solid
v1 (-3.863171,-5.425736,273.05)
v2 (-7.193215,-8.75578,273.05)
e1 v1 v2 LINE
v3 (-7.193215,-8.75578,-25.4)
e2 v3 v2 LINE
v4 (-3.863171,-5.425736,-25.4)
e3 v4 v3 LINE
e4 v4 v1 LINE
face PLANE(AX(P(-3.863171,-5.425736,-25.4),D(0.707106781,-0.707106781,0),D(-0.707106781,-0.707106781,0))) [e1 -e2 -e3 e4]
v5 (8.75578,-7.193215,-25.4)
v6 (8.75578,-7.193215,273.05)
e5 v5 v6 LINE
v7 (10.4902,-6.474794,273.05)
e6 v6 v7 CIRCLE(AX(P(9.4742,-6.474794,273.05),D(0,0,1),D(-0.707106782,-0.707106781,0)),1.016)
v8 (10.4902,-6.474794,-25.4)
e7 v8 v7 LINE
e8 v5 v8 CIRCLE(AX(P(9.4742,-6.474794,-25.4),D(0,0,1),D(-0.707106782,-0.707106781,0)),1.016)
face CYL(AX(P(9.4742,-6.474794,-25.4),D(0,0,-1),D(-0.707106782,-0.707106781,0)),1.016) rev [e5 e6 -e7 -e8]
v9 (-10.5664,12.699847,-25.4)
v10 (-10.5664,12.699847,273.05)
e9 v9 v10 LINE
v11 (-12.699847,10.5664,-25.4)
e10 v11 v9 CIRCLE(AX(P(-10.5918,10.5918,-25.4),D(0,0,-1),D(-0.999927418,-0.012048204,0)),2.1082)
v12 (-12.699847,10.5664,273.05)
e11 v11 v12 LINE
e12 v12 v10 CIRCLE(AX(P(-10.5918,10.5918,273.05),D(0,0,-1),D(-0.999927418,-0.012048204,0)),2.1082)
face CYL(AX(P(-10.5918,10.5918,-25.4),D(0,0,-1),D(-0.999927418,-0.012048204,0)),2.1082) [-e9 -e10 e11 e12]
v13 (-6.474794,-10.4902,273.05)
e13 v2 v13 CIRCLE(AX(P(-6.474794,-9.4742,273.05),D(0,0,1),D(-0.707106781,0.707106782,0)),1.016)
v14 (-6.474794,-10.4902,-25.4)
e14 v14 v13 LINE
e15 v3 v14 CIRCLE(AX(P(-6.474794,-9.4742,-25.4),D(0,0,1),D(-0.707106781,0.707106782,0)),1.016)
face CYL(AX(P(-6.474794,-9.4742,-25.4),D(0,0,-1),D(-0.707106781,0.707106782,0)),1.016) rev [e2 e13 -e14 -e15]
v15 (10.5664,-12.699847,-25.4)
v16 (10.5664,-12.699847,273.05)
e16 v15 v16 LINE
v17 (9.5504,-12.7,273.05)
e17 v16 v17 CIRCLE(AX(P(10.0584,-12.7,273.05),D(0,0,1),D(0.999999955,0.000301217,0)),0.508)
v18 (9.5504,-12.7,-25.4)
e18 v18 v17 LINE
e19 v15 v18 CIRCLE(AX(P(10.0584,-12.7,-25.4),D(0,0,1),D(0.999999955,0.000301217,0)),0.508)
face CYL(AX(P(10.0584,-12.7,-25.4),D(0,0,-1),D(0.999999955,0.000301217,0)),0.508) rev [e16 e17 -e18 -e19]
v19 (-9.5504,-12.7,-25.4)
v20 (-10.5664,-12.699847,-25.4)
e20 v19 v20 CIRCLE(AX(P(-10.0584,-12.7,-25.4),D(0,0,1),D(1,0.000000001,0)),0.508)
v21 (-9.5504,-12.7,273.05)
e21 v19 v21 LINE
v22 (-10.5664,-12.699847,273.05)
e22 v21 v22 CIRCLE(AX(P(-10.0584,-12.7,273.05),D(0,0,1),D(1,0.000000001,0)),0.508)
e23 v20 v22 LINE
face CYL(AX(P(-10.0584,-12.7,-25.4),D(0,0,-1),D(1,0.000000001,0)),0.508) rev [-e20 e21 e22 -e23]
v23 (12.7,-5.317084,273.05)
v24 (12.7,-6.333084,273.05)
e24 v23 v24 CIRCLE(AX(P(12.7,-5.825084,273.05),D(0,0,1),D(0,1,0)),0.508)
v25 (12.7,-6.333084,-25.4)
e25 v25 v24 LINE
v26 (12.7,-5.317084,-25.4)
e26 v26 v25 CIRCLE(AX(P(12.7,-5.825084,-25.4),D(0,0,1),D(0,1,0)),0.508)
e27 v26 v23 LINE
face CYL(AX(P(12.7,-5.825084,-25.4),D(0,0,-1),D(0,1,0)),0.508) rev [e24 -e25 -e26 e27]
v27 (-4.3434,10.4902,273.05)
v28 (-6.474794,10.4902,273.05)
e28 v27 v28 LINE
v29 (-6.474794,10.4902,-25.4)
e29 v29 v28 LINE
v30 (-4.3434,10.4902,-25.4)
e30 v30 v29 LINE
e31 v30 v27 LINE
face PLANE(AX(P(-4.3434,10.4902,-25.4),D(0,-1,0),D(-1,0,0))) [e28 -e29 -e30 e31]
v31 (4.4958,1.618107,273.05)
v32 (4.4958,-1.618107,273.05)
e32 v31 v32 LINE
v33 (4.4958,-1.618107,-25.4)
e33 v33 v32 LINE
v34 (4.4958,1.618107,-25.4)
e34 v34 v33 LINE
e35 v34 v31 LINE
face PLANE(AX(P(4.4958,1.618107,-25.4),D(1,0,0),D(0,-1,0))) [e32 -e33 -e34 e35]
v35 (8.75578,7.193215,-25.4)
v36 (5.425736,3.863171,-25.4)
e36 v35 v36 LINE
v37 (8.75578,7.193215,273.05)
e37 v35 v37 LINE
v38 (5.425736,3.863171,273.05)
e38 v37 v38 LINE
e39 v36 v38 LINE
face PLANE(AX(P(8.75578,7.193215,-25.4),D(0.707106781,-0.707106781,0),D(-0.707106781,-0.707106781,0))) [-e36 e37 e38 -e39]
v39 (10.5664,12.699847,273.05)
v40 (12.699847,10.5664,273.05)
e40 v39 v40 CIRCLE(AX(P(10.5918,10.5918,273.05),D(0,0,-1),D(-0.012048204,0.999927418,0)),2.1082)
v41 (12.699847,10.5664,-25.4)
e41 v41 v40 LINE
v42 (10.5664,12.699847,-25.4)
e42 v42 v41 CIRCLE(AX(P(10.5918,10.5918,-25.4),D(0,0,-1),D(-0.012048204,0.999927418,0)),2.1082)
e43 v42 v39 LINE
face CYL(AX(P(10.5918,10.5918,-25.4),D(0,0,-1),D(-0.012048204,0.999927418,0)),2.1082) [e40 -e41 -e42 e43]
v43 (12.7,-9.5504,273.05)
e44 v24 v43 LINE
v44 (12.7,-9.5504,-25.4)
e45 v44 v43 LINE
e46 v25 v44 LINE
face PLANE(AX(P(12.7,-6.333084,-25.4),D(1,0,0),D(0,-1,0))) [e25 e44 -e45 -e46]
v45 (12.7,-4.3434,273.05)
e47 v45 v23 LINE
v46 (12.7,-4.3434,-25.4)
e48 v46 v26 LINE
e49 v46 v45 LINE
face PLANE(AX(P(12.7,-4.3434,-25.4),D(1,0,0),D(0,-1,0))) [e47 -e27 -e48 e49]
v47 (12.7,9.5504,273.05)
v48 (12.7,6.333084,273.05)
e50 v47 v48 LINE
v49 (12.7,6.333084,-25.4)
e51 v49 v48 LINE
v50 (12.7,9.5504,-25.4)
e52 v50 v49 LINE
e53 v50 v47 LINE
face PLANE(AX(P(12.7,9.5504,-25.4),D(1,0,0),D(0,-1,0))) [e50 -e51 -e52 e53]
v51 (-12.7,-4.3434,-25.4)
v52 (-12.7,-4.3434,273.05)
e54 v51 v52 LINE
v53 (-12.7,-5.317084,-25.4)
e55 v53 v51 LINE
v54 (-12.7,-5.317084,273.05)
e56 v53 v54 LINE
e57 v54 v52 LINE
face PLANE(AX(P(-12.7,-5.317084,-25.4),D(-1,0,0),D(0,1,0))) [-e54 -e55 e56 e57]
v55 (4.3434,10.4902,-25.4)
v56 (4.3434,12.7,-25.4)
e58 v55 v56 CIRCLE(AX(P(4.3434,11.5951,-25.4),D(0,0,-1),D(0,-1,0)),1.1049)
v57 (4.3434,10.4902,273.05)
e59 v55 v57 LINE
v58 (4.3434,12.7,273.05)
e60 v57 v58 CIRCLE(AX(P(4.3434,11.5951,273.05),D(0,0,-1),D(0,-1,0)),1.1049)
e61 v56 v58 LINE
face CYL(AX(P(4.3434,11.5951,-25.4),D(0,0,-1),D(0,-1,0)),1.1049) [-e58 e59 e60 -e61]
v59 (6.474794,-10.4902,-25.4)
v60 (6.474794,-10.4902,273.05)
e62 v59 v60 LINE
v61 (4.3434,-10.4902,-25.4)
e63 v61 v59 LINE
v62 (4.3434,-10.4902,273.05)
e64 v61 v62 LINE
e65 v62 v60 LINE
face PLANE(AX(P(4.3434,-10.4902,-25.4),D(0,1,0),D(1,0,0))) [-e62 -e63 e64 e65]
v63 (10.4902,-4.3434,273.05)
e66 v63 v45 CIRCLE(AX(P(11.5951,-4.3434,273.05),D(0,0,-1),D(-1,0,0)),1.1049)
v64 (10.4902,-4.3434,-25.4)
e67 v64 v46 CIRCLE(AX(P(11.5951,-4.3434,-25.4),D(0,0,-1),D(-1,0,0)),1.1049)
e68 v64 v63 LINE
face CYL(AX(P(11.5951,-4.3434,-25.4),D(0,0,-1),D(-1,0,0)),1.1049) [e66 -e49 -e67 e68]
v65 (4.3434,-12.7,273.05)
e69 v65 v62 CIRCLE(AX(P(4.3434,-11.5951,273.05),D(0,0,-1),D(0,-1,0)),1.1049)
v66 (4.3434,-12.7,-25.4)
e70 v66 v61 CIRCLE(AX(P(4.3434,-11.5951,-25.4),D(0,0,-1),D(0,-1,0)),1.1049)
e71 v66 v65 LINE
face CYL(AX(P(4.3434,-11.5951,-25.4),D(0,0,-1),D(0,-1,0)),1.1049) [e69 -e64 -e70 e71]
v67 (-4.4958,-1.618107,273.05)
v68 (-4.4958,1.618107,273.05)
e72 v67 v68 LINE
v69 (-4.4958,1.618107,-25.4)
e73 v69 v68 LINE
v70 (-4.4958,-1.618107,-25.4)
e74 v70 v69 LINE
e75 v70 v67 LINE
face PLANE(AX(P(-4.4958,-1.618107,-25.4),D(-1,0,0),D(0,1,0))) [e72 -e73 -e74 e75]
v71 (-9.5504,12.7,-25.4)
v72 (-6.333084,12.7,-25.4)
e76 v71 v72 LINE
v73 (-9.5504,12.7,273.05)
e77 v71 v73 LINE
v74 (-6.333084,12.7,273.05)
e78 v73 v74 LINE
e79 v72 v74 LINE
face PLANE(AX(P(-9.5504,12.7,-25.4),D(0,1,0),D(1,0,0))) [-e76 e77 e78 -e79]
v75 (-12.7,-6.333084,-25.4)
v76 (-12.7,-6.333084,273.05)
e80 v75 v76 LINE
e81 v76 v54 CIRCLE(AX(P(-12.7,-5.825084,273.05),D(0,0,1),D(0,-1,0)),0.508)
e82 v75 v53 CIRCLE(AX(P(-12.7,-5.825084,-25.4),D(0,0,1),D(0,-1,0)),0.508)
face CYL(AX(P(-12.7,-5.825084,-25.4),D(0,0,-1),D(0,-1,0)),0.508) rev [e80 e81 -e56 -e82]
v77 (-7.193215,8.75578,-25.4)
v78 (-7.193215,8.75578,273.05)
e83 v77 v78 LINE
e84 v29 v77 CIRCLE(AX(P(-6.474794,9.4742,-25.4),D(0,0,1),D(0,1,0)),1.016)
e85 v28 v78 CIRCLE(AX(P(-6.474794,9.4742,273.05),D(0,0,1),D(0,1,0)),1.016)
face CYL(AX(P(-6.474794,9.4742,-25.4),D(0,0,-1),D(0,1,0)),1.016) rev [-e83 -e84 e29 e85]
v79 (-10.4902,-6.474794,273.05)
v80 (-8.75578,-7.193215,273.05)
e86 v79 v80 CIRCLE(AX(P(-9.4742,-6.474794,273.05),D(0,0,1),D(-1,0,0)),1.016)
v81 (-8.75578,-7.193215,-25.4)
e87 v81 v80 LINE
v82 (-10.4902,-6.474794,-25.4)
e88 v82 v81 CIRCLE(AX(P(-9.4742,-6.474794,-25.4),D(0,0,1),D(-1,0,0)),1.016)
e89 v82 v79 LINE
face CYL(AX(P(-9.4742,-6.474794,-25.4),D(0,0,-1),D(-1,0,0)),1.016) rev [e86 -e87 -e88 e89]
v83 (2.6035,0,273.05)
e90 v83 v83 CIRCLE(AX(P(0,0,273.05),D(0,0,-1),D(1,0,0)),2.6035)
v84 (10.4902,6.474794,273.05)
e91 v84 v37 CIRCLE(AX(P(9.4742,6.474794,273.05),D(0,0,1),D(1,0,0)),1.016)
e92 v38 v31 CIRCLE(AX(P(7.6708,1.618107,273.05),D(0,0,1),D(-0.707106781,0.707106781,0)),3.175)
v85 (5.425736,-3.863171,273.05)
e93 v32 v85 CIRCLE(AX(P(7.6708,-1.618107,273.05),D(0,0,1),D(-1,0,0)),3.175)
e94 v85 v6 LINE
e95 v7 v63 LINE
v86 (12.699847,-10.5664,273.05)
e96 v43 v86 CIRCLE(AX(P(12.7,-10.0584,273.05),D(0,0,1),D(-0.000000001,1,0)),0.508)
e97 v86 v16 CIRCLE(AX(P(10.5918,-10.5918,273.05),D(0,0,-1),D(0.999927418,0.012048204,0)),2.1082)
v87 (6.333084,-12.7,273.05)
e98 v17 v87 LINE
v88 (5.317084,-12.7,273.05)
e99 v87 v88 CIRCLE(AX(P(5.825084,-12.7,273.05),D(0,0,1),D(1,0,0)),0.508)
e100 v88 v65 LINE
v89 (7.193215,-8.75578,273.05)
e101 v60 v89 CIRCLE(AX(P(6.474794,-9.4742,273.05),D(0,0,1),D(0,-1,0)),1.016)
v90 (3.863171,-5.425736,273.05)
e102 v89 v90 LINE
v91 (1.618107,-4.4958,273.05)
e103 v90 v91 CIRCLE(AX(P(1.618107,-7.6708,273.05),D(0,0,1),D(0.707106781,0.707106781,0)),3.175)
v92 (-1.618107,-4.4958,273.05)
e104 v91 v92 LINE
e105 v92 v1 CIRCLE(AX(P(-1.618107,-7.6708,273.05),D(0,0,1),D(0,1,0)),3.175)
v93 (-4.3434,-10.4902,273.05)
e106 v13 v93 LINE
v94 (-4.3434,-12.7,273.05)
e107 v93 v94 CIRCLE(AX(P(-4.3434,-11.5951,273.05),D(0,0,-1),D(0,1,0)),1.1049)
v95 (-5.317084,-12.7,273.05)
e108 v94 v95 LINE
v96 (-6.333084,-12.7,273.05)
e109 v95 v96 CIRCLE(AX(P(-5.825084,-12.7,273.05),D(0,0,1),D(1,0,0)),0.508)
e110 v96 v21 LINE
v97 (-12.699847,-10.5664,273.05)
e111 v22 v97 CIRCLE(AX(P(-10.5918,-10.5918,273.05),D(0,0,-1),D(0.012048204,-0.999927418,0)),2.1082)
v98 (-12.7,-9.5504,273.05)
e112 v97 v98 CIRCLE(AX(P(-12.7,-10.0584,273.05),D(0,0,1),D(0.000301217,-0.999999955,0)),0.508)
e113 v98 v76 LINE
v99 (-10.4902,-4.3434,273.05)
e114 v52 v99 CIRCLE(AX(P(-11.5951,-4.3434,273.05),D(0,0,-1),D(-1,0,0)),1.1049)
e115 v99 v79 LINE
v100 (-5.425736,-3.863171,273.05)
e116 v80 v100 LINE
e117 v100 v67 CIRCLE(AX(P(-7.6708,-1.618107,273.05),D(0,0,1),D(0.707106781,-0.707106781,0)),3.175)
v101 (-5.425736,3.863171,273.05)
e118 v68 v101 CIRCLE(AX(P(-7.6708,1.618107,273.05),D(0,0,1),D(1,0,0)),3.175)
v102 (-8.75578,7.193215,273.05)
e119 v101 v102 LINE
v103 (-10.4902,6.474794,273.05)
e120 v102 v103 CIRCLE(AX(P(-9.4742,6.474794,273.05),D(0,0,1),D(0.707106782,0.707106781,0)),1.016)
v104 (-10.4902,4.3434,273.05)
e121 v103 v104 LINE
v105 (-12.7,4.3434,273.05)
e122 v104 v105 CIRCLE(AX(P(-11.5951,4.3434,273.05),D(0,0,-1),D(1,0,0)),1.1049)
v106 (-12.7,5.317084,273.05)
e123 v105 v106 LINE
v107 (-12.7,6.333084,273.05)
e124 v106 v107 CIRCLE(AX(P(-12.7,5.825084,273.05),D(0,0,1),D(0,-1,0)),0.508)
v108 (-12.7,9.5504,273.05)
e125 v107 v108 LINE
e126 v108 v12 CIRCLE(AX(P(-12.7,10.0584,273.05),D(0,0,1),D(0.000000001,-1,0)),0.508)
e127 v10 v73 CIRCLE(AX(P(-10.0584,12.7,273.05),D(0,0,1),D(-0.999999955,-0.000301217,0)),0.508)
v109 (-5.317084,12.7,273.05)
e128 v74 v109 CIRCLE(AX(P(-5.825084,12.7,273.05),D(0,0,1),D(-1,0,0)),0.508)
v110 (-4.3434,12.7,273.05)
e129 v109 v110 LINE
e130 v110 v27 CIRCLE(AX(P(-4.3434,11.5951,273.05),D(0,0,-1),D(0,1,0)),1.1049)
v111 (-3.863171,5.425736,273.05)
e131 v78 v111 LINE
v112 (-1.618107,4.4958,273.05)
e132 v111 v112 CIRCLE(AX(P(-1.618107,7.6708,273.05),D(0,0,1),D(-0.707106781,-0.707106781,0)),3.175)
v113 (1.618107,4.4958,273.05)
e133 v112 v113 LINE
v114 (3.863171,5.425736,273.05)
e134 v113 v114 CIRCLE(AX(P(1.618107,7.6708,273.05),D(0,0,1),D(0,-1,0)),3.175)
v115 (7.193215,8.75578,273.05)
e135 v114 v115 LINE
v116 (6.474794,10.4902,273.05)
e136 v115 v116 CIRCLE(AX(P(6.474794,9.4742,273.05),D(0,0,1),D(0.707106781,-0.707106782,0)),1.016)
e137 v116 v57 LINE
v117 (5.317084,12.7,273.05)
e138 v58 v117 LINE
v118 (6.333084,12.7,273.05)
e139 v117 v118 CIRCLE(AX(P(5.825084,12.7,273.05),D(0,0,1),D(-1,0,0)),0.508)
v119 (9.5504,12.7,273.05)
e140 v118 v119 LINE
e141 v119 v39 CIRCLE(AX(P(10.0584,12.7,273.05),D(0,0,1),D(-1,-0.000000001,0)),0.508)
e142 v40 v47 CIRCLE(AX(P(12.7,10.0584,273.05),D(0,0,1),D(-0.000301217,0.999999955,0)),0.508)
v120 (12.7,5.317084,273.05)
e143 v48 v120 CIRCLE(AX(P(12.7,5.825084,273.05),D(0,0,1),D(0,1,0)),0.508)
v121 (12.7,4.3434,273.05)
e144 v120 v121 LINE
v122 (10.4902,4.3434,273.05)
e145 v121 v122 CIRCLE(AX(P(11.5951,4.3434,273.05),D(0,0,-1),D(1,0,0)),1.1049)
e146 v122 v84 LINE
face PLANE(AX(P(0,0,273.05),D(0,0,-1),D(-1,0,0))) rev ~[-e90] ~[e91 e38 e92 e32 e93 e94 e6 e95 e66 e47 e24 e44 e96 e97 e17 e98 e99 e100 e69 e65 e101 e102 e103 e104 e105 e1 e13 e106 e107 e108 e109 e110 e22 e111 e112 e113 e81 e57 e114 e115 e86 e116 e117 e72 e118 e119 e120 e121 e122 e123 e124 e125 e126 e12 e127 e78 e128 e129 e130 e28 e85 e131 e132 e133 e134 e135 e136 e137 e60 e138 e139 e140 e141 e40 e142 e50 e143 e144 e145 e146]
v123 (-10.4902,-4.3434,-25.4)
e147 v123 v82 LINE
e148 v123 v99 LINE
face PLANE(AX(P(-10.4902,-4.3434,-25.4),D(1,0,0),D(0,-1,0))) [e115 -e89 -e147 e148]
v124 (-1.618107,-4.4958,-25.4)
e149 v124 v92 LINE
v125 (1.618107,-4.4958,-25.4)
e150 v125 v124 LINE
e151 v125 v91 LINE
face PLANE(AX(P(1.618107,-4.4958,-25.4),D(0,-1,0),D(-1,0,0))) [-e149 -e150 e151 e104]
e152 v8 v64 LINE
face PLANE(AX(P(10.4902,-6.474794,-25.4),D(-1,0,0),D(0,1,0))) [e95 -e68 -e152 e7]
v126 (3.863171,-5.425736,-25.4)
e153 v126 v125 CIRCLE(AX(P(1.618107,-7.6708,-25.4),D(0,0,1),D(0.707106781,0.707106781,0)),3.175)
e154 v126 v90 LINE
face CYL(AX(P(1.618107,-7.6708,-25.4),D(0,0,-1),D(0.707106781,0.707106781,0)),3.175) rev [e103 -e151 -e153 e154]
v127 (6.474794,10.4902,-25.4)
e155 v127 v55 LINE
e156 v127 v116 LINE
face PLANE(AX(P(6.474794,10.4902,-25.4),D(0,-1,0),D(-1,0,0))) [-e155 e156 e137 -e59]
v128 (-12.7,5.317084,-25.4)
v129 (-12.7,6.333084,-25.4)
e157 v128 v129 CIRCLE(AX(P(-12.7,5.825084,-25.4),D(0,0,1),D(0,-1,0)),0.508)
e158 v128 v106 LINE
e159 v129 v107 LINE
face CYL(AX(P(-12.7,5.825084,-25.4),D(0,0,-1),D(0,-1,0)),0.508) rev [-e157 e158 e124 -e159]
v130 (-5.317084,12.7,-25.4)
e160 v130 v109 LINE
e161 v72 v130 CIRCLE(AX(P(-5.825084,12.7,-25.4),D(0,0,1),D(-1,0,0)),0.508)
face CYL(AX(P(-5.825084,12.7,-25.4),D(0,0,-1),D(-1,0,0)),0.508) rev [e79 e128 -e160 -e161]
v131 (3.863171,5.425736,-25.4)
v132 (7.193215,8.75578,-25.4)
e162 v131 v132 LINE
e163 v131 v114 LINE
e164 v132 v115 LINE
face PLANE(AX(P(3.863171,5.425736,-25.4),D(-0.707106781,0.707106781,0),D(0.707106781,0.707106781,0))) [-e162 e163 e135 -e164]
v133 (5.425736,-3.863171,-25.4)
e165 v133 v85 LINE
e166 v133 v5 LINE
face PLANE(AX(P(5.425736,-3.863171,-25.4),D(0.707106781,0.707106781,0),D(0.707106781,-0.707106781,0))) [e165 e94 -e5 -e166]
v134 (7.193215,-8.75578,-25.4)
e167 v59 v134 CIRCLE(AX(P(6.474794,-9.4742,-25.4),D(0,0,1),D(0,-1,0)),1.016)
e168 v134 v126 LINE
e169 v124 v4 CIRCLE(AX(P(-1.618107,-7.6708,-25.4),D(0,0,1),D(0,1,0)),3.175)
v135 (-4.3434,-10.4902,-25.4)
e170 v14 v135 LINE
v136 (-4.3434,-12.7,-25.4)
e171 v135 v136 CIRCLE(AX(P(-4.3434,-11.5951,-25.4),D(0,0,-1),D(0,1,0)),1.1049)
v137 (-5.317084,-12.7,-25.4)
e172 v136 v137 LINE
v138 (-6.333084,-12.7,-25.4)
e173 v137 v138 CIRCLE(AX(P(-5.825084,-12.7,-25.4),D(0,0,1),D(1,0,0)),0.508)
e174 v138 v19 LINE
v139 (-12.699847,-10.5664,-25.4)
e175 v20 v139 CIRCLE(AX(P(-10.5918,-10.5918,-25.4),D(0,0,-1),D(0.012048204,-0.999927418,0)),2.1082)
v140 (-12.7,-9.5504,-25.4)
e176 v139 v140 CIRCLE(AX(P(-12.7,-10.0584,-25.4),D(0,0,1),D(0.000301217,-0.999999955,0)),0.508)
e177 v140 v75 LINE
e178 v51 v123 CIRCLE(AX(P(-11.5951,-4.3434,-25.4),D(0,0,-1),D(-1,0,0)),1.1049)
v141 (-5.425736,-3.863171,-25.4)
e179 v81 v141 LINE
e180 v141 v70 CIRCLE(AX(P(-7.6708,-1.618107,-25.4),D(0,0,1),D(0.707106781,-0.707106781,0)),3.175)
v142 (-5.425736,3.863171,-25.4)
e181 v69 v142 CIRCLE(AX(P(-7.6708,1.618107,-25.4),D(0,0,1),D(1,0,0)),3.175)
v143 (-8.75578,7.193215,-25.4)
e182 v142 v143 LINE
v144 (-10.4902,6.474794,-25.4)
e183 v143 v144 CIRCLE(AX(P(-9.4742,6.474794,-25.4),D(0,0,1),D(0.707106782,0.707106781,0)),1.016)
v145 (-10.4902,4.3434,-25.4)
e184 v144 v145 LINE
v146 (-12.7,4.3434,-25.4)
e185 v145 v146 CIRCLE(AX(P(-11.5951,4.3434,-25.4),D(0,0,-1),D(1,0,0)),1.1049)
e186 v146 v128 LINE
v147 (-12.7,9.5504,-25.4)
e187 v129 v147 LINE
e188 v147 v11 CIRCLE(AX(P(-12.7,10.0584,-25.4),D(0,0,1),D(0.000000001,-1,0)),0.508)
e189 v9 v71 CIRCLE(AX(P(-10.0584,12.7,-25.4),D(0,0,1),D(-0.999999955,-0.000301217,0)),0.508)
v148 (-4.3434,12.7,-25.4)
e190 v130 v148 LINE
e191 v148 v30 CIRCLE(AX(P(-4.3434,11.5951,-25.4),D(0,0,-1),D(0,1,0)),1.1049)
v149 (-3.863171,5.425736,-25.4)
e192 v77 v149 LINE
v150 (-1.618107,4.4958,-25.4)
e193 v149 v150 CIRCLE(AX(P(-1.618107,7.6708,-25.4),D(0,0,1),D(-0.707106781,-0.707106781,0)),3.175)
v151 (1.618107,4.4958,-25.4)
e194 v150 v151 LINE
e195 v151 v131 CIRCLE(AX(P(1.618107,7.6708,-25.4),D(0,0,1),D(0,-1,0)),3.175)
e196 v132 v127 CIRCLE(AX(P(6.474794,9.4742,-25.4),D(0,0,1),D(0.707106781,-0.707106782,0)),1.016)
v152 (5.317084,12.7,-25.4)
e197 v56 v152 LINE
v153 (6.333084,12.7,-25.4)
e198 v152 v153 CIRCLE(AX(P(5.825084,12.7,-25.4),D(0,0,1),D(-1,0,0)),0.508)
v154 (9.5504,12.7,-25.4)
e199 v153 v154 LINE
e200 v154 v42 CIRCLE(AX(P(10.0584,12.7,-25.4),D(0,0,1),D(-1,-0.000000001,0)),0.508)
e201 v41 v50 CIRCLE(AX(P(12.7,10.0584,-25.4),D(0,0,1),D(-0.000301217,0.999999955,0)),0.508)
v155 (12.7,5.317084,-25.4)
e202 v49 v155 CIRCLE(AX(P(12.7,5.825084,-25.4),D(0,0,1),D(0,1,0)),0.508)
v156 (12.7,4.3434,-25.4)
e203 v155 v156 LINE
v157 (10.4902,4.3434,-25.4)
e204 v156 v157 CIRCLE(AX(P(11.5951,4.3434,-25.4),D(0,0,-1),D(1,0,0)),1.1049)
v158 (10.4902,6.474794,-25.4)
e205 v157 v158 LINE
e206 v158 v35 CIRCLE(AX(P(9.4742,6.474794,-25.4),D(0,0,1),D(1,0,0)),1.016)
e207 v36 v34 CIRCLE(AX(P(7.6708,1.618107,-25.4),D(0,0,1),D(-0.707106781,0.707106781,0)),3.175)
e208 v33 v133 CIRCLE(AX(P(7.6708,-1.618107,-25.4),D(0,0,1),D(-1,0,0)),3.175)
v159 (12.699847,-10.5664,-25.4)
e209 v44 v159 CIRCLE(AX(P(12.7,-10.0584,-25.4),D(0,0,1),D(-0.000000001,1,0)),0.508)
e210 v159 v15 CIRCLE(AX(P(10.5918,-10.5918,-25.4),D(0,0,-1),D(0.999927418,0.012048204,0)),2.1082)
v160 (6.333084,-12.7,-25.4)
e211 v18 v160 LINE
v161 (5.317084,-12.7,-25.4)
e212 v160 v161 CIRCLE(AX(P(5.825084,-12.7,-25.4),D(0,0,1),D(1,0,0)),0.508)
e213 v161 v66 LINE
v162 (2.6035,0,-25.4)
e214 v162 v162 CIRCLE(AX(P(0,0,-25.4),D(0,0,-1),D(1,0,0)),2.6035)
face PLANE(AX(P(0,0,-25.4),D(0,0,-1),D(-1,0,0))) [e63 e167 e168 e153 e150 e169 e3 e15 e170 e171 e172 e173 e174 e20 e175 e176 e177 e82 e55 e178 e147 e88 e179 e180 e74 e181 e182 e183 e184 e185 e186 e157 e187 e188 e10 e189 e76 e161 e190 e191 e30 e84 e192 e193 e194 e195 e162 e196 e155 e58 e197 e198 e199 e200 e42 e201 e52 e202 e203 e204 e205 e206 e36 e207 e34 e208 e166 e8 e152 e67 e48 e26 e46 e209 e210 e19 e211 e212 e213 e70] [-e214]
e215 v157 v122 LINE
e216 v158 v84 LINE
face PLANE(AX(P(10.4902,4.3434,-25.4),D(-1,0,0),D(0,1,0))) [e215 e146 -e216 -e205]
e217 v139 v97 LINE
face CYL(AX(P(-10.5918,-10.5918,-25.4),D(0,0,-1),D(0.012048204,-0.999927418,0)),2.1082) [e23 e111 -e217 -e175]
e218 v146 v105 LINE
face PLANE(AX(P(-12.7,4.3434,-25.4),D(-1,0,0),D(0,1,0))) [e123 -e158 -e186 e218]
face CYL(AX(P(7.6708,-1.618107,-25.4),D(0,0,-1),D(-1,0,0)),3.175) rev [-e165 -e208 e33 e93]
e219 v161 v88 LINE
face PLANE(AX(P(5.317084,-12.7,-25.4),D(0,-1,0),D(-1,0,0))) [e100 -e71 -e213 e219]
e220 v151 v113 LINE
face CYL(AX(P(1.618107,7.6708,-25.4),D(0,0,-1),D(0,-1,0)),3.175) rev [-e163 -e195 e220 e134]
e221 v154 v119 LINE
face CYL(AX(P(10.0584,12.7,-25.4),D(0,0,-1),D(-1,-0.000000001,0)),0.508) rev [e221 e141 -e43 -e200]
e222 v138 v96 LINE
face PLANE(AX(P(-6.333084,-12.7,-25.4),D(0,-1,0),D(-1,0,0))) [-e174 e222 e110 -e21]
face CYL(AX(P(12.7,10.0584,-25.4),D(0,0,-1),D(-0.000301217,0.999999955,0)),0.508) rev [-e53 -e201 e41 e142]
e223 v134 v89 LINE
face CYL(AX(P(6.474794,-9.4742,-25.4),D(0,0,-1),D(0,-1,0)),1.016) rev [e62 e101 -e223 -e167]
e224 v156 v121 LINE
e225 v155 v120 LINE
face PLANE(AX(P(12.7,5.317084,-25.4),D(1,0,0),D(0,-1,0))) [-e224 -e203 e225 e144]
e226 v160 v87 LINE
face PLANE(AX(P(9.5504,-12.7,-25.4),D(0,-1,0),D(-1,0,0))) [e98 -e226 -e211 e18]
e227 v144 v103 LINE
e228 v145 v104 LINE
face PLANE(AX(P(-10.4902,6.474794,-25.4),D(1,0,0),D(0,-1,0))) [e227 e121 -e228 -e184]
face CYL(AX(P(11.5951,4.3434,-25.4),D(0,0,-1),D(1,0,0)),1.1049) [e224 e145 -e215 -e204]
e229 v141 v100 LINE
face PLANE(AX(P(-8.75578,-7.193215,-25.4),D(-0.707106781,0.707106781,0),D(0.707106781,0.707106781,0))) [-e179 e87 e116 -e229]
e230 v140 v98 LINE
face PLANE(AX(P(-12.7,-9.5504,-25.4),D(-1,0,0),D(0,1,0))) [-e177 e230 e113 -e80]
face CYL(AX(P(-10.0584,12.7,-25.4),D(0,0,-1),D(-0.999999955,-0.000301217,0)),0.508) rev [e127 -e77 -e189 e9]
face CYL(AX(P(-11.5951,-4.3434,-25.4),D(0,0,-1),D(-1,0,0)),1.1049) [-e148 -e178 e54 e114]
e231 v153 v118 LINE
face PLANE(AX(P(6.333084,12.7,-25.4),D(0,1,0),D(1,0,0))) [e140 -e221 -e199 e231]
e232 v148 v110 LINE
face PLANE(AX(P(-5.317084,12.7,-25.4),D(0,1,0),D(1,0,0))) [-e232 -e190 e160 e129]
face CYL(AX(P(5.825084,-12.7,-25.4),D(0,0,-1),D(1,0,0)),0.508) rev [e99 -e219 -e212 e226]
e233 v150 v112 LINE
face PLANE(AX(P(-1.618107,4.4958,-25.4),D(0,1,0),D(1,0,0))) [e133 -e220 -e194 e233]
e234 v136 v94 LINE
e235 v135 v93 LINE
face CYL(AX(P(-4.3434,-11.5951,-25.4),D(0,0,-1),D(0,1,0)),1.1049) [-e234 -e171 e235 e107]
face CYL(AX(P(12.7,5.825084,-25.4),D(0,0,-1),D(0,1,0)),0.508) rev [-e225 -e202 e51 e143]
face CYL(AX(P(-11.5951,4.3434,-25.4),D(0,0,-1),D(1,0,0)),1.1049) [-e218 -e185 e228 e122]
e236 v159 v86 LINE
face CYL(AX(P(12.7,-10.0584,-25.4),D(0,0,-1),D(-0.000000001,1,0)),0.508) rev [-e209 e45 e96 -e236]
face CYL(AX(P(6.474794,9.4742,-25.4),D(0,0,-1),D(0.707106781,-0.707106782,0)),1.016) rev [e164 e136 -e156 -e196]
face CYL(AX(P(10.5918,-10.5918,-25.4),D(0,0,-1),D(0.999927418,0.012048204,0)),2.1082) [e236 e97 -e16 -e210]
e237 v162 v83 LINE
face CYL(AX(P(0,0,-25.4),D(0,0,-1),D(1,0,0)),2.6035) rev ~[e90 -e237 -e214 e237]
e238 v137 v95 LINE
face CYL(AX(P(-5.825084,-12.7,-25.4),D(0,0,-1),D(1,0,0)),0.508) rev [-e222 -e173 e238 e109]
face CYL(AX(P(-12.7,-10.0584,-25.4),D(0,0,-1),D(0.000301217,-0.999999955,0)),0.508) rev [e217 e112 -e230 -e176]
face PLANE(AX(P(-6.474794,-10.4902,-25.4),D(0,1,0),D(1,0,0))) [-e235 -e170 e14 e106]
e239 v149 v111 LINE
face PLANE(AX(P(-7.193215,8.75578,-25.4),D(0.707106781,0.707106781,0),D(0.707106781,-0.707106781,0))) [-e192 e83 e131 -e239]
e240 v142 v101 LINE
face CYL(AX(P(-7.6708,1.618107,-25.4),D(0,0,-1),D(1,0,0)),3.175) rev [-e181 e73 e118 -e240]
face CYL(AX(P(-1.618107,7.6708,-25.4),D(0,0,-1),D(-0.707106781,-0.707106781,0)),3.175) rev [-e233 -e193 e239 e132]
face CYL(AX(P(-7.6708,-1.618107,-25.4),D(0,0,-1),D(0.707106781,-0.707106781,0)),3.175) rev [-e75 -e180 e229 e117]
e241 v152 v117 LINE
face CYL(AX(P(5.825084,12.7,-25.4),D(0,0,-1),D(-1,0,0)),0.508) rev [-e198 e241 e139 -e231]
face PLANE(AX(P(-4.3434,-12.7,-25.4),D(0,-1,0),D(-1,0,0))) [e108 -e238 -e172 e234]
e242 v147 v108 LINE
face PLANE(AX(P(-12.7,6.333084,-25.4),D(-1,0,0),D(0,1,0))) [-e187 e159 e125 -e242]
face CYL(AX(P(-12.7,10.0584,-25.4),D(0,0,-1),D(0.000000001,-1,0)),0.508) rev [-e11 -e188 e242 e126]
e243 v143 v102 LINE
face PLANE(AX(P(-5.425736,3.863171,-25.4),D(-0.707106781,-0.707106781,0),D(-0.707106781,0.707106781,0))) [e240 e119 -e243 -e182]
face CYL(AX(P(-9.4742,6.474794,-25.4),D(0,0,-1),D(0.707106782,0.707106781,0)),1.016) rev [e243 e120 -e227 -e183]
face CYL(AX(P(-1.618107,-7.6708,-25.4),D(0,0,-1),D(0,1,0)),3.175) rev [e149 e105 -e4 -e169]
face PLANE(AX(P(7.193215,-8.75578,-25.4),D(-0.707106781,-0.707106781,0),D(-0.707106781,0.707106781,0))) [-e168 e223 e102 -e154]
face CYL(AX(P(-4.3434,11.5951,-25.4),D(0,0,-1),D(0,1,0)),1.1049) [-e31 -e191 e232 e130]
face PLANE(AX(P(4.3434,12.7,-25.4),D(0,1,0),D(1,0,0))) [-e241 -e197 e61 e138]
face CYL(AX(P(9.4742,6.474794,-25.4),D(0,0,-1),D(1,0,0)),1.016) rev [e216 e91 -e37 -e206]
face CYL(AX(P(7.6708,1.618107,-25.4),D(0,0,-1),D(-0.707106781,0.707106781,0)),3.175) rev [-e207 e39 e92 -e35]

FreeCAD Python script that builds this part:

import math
import FreeCAD as App
import Part
import Sketcher
Q = App.Units.Quantity

doc = App.newDocument("Part")
body = doc.addObject("PartDesign::Body", "Body")

# Sketch on XY plane
sketch1 = body.newObject("Sketcher::SketchObject", "Sketch")
sketch1.AttachmentSupport = (doc.getObject("XY_Plane"), [""])
sketch1.MapMode = "FlatFace"
sketch1.AttachmentOffset = App.Placement(App.Vector(0, 0, -1 * 25.4), App.Rotation())
sketch1.addGeometry(Part.LineSegment(App.Vector(-12.7, -9.6, 0), App.Vector(-12.7, -6.3, 0)), False)
sketch1.addGeometry(Part.ArcOfCircle(Part.Circle(App.Vector(-12.7, -5.8, 0), App.Vector(0, 0, 1), 0.5), math.radians(-90), math.radians(90)), False)
sketch1.addGeometry(Part.LineSegment(App.Vector(-12.7, -5.3, 0), App.Vector(-12.7, -4.3, 0)), False)
sketch1.addGeometry(Part.ArcOfCircle(Part.Circle(App.Vector(-11.6, -4.3, 0), App.Vector(0, 0, 1), 1.1), math.radians(0), math.radians(180)), False)
sketch1.addGeometry(Part.LineSegment(App.Vector(-10.5, -4.3, 0), App.Vector(-10.5, -6.5, 0)), False)
sketch1.addGeometry(Part.ArcOfCircle(Part.Circle(App.Vector(-9.5, -6.5, 0), App.Vector(0, 0, 1), 1), math.radians(180), math.radians(315)), False)
sketch1.addGeometry(Part.LineSegment(App.Vector(-8.8, -7.2, 0), App.Vector(-5.4, -3.9, 0)), False)
sketch1.addGeometry(Part.ArcOfCircle(Part.Circle(App.Vector(-7.7, -1.6, 0), App.Vector(0, 0, 1), 3.2), math.radians(-45), math.radians(0)), False)
sketch1.addGeometry(Part.LineSegment(App.Vector(-4.5, -1.6, 0), App.Vector(-4.5, 1.6, 0)), False)
sketch1.addGeometry(Part.ArcOfCircle(Part.Circle(App.Vector(-7.7, 1.6, 0), App.Vector(0, 0, 1), 3.2), math.radians(0), math.radians(45)), False)
sketch1.addGeometry(Part.LineSegment(App.Vector(-5.4, 3.9, 0), App.Vector(-8.8, 7.2, 0)), False)
sketch1.addGeometry(Part.ArcOfCircle(Part.Circle(App.Vector(-9.5, 6.5, 0), App.Vector(0, 0, 1), 1), math.radians(45), math.radians(180)), False)
sketch1.addGeometry(Part.LineSegment(App.Vector(-10.5, 6.5, 0), App.Vector(-10.5, 4.3, 0)), False)
sketch1.addGeometry(Part.ArcOfCircle(Part.Circle(App.Vector(-11.6, 4.3, 0), App.Vector(0, 0, 1), 1.1), math.radians(180), math.radians(360)), False)
sketch1.addGeometry(Part.LineSegment(App.Vector(-12.7, 4.3, 0), App.Vector(-12.7, 5.3, 0)), False)
sketch1.addGeometry(Part.ArcOfCircle(Part.Circle(App.Vector(-12.7, 5.8, 0), App.Vector(0, 0, 1), 0.5), math.radians(-90), math.radians(90)), False)
sketch1.addGeometry(Part.LineSegment(App.Vector(-12.7, 6.3, 0), App.Vector(-12.7, 9.6, 0)), False)
sketch1.addGeometry(Part.ArcOfCircle(Part.Circle(App.Vector(-12.7, 10.1, 0), App.Vector(0, 0, 1), 0.5), math.radians(-90), math.radians(90)), False)
sketch1.addGeometry(Part.ArcOfCircle(Part.Circle(App.Vector(-10.6, 10.6, 0), App.Vector(0, 0, 1), 2.1), math.radians(89), math.radians(181)), False)
sketch1.addGeometry(Part.ArcOfCircle(Part.Circle(App.Vector(-10.1, 12.7, 0), App.Vector(0, 0, 1), 0.5), math.radians(-180), math.radians(0)), False)
sketch1.addGeometry(Part.LineSegment(App.Vector(-9.6, 12.7, 0), App.Vector(-6.3, 12.7, 0)), False)
sketch1.addGeometry(Part.ArcOfCircle(Part.Circle(App.Vector(-5.8, 12.7, 0), App.Vector(0, 0, 1), 0.5), math.radians(180), math.radians(360)), False)
sketch1.addGeometry(Part.LineSegment(App.Vector(-5.3, 12.7, 0), App.Vector(-4.3, 12.7, 0)), False)
sketch1.addGeometry(Part.ArcOfCircle(Part.Circle(App.Vector(-4.3, 11.6, 0), App.Vector(0, 0, 1), 1.1), math.radians(-90), math.radians(90)), False)
sketch1.addGeometry(Part.LineSegment(App.Vector(-4.3, 10.5, 0), App.Vector(-6.5, 10.5, 0)), False)
sketch1.addGeometry(Part.ArcOfCircle(Part.Circle(App.Vector(-6.5, 9.5, 0), App.Vector(0, 0, 1), 1), math.radians(90), math.radians(225)), False)
sketch1.addGeometry(Part.LineSegment(App.Vector(-7.2, 8.8, 0), App.Vector(-3.9, 5.4, 0)), False)
sketch1.addGeometry(Part.ArcOfCircle(Part.Circle(App.Vector(-1.6, 7.7, 0), App.Vector(0, 0, 1), 3.2), math.radians(-135), math.radians(-90)), False)
sketch1.addGeometry(Part.LineSegment(App.Vector(-1.6, 4.5, 0), App.Vector(1.6, 4.5, 0)), False)
sketch1.addGeometry(Part.ArcOfCircle(Part.Circle(App.Vector(1.6, 7.7, 0), App.Vector(0, 0, 1), 3.2), math.radians(-90), math.radians(-45)), False)
sketch1.addGeometry(Part.LineSegment(App.Vector(3.9, 5.4, 0), App.Vector(7.2, 8.8, 0)), False)
sketch1.addGeometry(Part.ArcOfCircle(Part.Circle(App.Vector(6.5, 9.5, 0), App.Vector(0, 0, 1), 1), math.radians(-45), math.radians(90)), False)
sketch1.addGeometry(Part.LineSegment(App.Vector(6.5, 10.5, 0), App.Vector(4.3, 10.5, 0)), False)
sketch1.addGeometry(Part.ArcOfCircle(Part.Circle(App.Vector(4.3, 11.6, 0), App.Vector(0, 0, 1), 1.1), math.radians(90), math.radians(270)), False)
sketch1.addGeometry(Part.LineSegment(App.Vector(4.3, 12.7, 0), App.Vector(5.3, 12.7, 0)), False)
sketch1.addGeometry(Part.ArcOfCircle(Part.Circle(App.Vector(5.8, 12.7, 0), App.Vector(0, 0, 1), 0.5), math.radians(180), math.radians(360)), False)
sketch1.addGeometry(Part.LineSegment(App.Vector(6.3, 12.7, 0), App.Vector(9.6, 12.7, 0)), False)
sketch1.addGeometry(Part.ArcOfCircle(Part.Circle(App.Vector(10.1, 12.7, 0), App.Vector(0, 0, 1), 0.5), math.radians(180), math.radians(360)), False)
sketch1.addGeometry(Part.ArcOfCircle(Part.Circle(App.Vector(10.6, 10.6, 0), App.Vector(0, 0, 1), 2.1), math.radians(-1), math.radians(91)), False)
sketch1.addGeometry(Part.ArcOfCircle(Part.Circle(App.Vector(12.7, 10.1, 0), App.Vector(0, 0, 1), 0.5), math.radians(90), math.radians(270)), False)
sketch1.addGeometry(Part.LineSegment(App.Vector(12.7, 9.6, 0), App.Vector(12.7, 6.3, 0)), False)
sketch1.addGeometry(Part.ArcOfCircle(Part.Circle(App.Vector(12.7, 5.8, 0), App.Vector(0, 0, 1), 0.5), math.radians(90), math.radians(270)), False)
sketch1.addGeometry(Part.LineSegment(App.Vector(12.7, 5.3, 0), App.Vector(12.7, 4.3, 0)), False)
sketch1.addGeometry(Part.ArcOfCircle(Part.Circle(App.Vector(11.6, 4.3, 0), App.Vector(0, 0, 1), 1.1), math.radians(180), math.radians(360)), False)
sketch1.addGeometry(Part.LineSegment(App.Vector(10.5, 4.3, 0), App.Vector(10.5, 6.5, 0)), False)
sketch1.addGeometry(Part.ArcOfCircle(Part.Circle(App.Vector(9.5, 6.5, 0), App.Vector(0, 0, 1), 1), math.radians(0), math.radians(135)), False)
sketch1.addGeometry(Part.LineSegment(App.Vector(8.8, 7.2, 0), App.Vector(5.4, 3.9, 0)), False)
sketch1.addGeometry(Part.ArcOfCircle(Part.Circle(App.Vector(7.7, 1.6, 0), App.Vector(0, 0, 1), 3.2), math.radians(135), math.radians(180)), False)
sketch1.addGeometry(Part.LineSegment(App.Vector(4.5, 1.6, 0), App.Vector(4.5, -1.6, 0)), False)
sketch1.addGeometry(Part.ArcOfCircle(Part.Circle(App.Vector(7.7, -1.6, 0), App.Vector(0, 0, 1), 3.2), math.radians(180), math.radians(225)), False)
sketch1.addGeometry(Part.LineSegment(App.Vector(5.4, -3.9, 0), App.Vector(8.8, -7.2, 0)), False)
sketch1.addGeometry(Part.ArcOfCircle(Part.Circle(App.Vector(9.5, -6.5, 0), App.Vector(0, 0, 1), 1), math.radians(-135), math.radians(0)), False)
sketch1.addGeometry(Part.LineSegment(App.Vector(10.5, -6.5, 0), App.Vector(10.5, -4.3, 0)), False)
sketch1.addGeometry(Part.ArcOfCircle(Part.Circle(App.Vector(11.6, -4.3, 0), App.Vector(0, 0, 1), 1.1), math.radians(0), math.radians(180)), False)
sketch1.addGeometry(Part.LineSegment(App.Vector(12.7, -4.3, 0), App.Vector(12.7, -5.3, 0)), False)
sketch1.addGeometry(Part.ArcOfCircle(Part.Circle(App.Vector(12.7, -5.8, 0), App.Vector(0, 0, 1), 0.5), math.radians(90), math.radians(270)), False)
sketch1.addGeometry(Part.LineSegment(App.Vector(12.7, -6.3, 0), App.Vector(12.7, -9.6, 0)), False)
sketch1.addGeometry(Part.ArcOfCircle(Part.Circle(App.Vector(12.7, -10.1, 0), App.Vector(0, 0, 1), 0.5), math.radians(90), math.radians(270)), False)
sketch1.addGeometry(Part.ArcOfCircle(Part.Circle(App.Vector(10.6, -10.6, 0), App.Vector(0, 0, 1), 2.1), math.radians(-91), math.radians(1)), False)
sketch1.addGeometry(Part.ArcOfCircle(Part.Circle(App.Vector(10.1, -12.7, 0), App.Vector(0, 0, 1), 0.5), math.radians(0), math.radians(180)), False)
sketch1.addGeometry(Part.LineSegment(App.Vector(9.6, -12.7, 0), App.Vector(6.3, -12.7, 0)), False)
sketch1.addGeometry(Part.ArcOfCircle(Part.Circle(App.Vector(5.8, -12.7, 0), App.Vector(0, 0, 1), 0.5), math.radians(0), math.radians(180)), False)
sketch1.addGeometry(Part.LineSegment(App.Vector(5.3, -12.7, 0), App.Vector(4.3, -12.7, 0)), False)
sketch1.addGeometry(Part.ArcOfCircle(Part.Circle(App.Vector(4.3, -11.6, 0), App.Vector(0, 0, 1), 1.1), math.radians(90), math.radians(270)), False)
sketch1.addGeometry(Part.LineSegment(App.Vector(4.3, -10.5, 0), App.Vector(6.5, -10.5, 0)), False)
sketch1.addGeometry(Part.ArcOfCircle(Part.Circle(App.Vector(6.5, -9.5, 0), App.Vector(0, 0, 1), 1), math.radians(-90), math.radians(45)), False)
sketch1.addGeometry(Part.LineSegment(App.Vector(7.2, -8.8, 0), App.Vector(3.9, -5.4, 0)), False)
sketch1.addGeometry(Part.ArcOfCircle(Part.Circle(App.Vector(1.6, -7.7, 0), App.Vector(0, 0, 1), 3.2), math.radians(45), math.radians(90)), False)
sketch1.addGeometry(Part.LineSegment(App.Vector(1.6, -4.5, 0), App.Vector(-1.6, -4.5, 0)), False)
sketch1.addGeometry(Part.ArcOfCircle(Part.Circle(App.Vector(-1.6, -7.7, 0), App.Vector(0, 0, 1), 3.2), math.radians(90), math.radians(135)), False)
sketch1.addGeometry(Part.LineSegment(App.Vector(-3.9, -5.4, 0), App.Vector(-7.2, -8.8, 0)), False)
sketch1.addGeometry(Part.ArcOfCircle(Part.Circle(App.Vector(-6.5, -9.5, 0), App.Vector(0, 0, 1), 1), math.radians(135), math.radians(270)), False)
sketch1.addGeometry(Part.LineSegment(App.Vector(-6.5, -10.5, 0), App.Vector(-4.3, -10.5, 0)), False)
sketch1.addGeometry(Part.ArcOfCircle(Part.Circle(App.Vector(-4.3, -11.6, 0), App.Vector(0, 0, 1), 1.1), math.radians(-90), math.radians(90)), False)
sketch1.addGeometry(Part.LineSegment(App.Vector(-4.3, -12.7, 0), App.Vector(-5.3, -12.7, 0)), False)
sketch1.addGeometry(Part.ArcOfCircle(Part.Circle(App.Vector(-5.8, -12.7, 0), App.Vector(0, 0, 1), 0.5), math.radians(0), math.radians(180)), False)
sketch1.addGeometry(Part.LineSegment(App.Vector(-6.3, -12.7, 0), App.Vector(-9.6, -12.7, 0)), False)
sketch1.addGeometry(Part.ArcOfCircle(Part.Circle(App.Vector(-10.1, -12.7, 0), App.Vector(0, 0, 1), 0.5), math.radians(0), math.radians(180)), False)
sketch1.addGeometry(Part.ArcOfCircle(Part.Circle(App.Vector(-10.6, -10.6, 0), App.Vector(0, 0, 1), 2.1), math.radians(179), math.radians(271)), False)
sketch1.addGeometry(Part.ArcOfCircle(Part.Circle(App.Vector(-12.7, -10.1, 0), App.Vector(0, 0, 1), 0.5), math.radians(-90), math.radians(90)), False)
sketch1.addGeometry(Part.Circle(App.Vector(0, 0, 0), App.Vector(0, 0, 1), 2.6), False)
sketch1.addConstraint(Sketcher.Constraint("Coincident", 0, 2, 1, 1))
sketch1.addConstraint(Sketcher.Constraint("Coincident", 1, 2, 2, 1))
sketch1.addConstraint(Sketcher.Constraint("Tangent", 2, 2, 3, 2))
sketch1.addConstraint(Sketcher.Constraint("Tangent", 3, 1, 4, 1))
sketch1.addConstraint(Sketcher.Constraint("Tangent", 4, 2, 5, 1))
sketch1.addConstraint(Sketcher.Constraint("Tangent", 5, 2, 6, 1))
sketch1.addConstraint(Sketcher.Constraint("Tangent", 6, 2, 7, 1))
sketch1.addConstraint(Sketcher.Constraint("Tangent", 7, 2, 8, 1))
sketch1.addConstraint(Sketcher.Constraint("Tangent", 8, 2, 9, 1))
sketch1.addConstraint(Sketcher.Constraint("Tangent", 9, 2, 10, 1))
sketch1.addConstraint(Sketcher.Constraint("Tangent", 10, 2, 11, 1))
sketch1.addConstraint(Sketcher.Constraint("Tangent", 11, 2, 12, 1))
sketch1.addConstraint(Sketcher.Constraint("Tangent", 12, 2, 13, 2))
sketch1.addConstraint(Sketcher.Constraint("Tangent", 13, 1, 14, 1))
sketch1.addConstraint(Sketcher.Constraint("Coincident", 14, 2, 15, 1))
sketch1.addConstraint(Sketcher.Constraint("Coincident", 15, 2, 16, 1))
sketch1.addConstraint(Sketcher.Constraint("Coincident", 16, 2, 17, 1))
sketch1.addConstraint(Sketcher.Constraint("Coincident", 17, 2, 18, 2))
sketch1.addConstraint(Sketcher.Constraint("Coincident", 18, 1, 19, 1))
sketch1.addConstraint(Sketcher.Constraint("Coincident", 19, 2, 20, 1))
sketch1.addConstraint(Sketcher.Constraint("Coincident", 20, 2, 21, 1))
sketch1.addConstraint(Sketcher.Constraint("Coincident", 21, 2, 22, 1))
sketch1.addConstraint(Sketcher.Constraint("Tangent", 22, 2, 23, 2))
sketch1.addConstraint(Sketcher.Constraint("Tangent", 23, 1, 24, 1))
sketch1.addConstraint(Sketcher.Constraint("Tangent", 24, 2, 25, 1))
sketch1.addConstraint(Sketcher.Constraint("Tangent", 25, 2, 26, 1))
sketch1.addConstraint(Sketcher.Constraint("Tangent", 26, 2, 27, 1))
sketch1.addConstraint(Sketcher.Constraint("Tangent", 27, 2, 28, 1))
sketch1.addConstraint(Sketcher.Constraint("Tangent", 28, 2, 29, 1))
sketch1.addConstraint(Sketcher.Constraint("Tangent", 29, 2, 30, 1))
sketch1.addConstraint(Sketcher.Constraint("Tangent", 30, 2, 31, 1))
sketch1.addConstraint(Sketcher.Constraint("Tangent", 31, 2, 32, 1))
sketch1.addConstraint(Sketcher.Constraint("Tangent", 32, 2, 33, 2))
sketch1.addConstraint(Sketcher.Constraint("Tangent", 33, 1, 34, 1))
sketch1.addConstraint(Sketcher.Constraint("Coincident", 34, 2, 35, 1))
sketch1.addConstraint(Sketcher.Constraint("Coincident", 35, 2, 36, 1))
sketch1.addConstraint(Sketcher.Constraint("Coincident", 36, 2, 37, 1))
sketch1.addConstraint(Sketcher.Constraint("Coincident", 37, 2, 38, 2))
sketch1.addConstraint(Sketcher.Constraint("Coincident", 38, 1, 39, 1))
sketch1.addConstraint(Sketcher.Constraint("Coincident", 39, 2, 40, 1))
sketch1.addConstraint(Sketcher.Constraint("Coincident", 40, 2, 41, 1))
sketch1.addConstraint(Sketcher.Constraint("Coincident", 41, 2, 42, 1))
sketch1.addConstraint(Sketcher.Constraint("Tangent", 42, 2, 43, 2))
sketch1.addConstraint(Sketcher.Constraint("Tangent", 43, 1, 44, 1))
sketch1.addConstraint(Sketcher.Constraint("Tangent", 44, 2, 45, 1))
sketch1.addConstraint(Sketcher.Constraint("Tangent", 45, 2, 46, 1))
sketch1.addConstraint(Sketcher.Constraint("Tangent", 46, 2, 47, 1))
sketch1.addConstraint(Sketcher.Constraint("Tangent", 47, 2, 48, 1))
sketch1.addConstraint(Sketcher.Constraint("Tangent", 48, 2, 49, 1))
sketch1.addConstraint(Sketcher.Constraint("Tangent", 49, 2, 50, 1))
sketch1.addConstraint(Sketcher.Constraint("Tangent", 50, 2, 51, 1))
sketch1.addConstraint(Sketcher.Constraint("Tangent", 51, 2, 52, 1))
sketch1.addConstraint(Sketcher.Constraint("Tangent", 52, 2, 53, 2))
sketch1.addConstraint(Sketcher.Constraint("Tangent", 53, 1, 54, 1))
sketch1.addConstraint(Sketcher.Constraint("Coincident", 54, 2, 55, 1))
sketch1.addConstraint(Sketcher.Constraint("Coincident", 55, 2, 56, 1))
sketch1.addConstraint(Sketcher.Constraint("Coincident", 56, 2, 57, 1))
sketch1.addConstraint(Sketcher.Constraint("Coincident", 57, 2, 58, 2))
sketch1.addConstraint(Sketcher.Constraint("Coincident", 58, 1, 59, 1))
sketch1.addConstraint(Sketcher.Constraint("Coincident", 59, 2, 60, 1))
sketch1.addConstraint(Sketcher.Constraint("Coincident", 60, 2, 61, 1))
sketch1.addConstraint(Sketcher.Constraint("Coincident", 61, 2, 62, 1))
sketch1.addConstraint(Sketcher.Constraint("Tangent", 62, 2, 63, 2))
sketch1.addConstraint(Sketcher.Constraint("Tangent", 63, 1, 64, 1))
sketch1.addConstraint(Sketcher.Constraint("Tangent", 64, 2, 65, 1))
sketch1.addConstraint(Sketcher.Constraint("Tangent", 65, 2, 66, 1))
sketch1.addConstraint(Sketcher.Constraint("Tangent", 66, 2, 67, 1))
sketch1.addConstraint(Sketcher.Constraint("Tangent", 67, 2, 68, 1))
sketch1.addConstraint(Sketcher.Constraint("Tangent", 68, 2, 69, 1))
sketch1.addConstraint(Sketcher.Constraint("Tangent", 69, 2, 70, 1))
sketch1.addConstraint(Sketcher.Constraint("Tangent", 70, 2, 71, 1))
sketch1.addConstraint(Sketcher.Constraint("Tangent", 71, 2, 72, 1))
sketch1.addConstraint(Sketcher.Constraint("Tangent", 72, 2, 73, 2))
sketch1.addConstraint(Sketcher.Constraint("Tangent", 73, 1, 74, 1))
sketch1.addConstraint(Sketcher.Constraint("Coincident", 74, 2, 75, 1))
sketch1.addConstraint(Sketcher.Constraint("Coincident", 75, 2, 76, 1))
sketch1.addConstraint(Sketcher.Constraint("Coincident", 76, 2, 77, 1))
sketch1.addConstraint(Sketcher.Constraint("Coincident", 77, 2, 78, 2))
sketch1.addConstraint(Sketcher.Constraint("Coincident", 78, 1, 79, 1))
sketch1.addConstraint(Sketcher.Constraint("Coincident", 79, 2, 0, 1))
sketch1.addConstraint(Sketcher.Constraint("Vertical", 0))
sketch1.addConstraint(Sketcher.Constraint("Vertical", 2))
sketch1.addConstraint(Sketcher.Constraint("Vertical", 4))
sketch1.addConstraint(Sketcher.Constraint("Vertical", 8))
sketch1.addConstraint(Sketcher.Constraint("Vertical", 12))
sketch1.addConstraint(Sketcher.Constraint("Vertical", 14))
sketch1.addConstraint(Sketcher.Constraint("Vertical", 16))
sketch1.addConstraint(Sketcher.Constraint("Horizontal", 20))
sketch1.addConstraint(Sketcher.Constraint("Horizontal", 22))
sketch1.addConstraint(Sketcher.Constraint("Horizontal", 24))
sketch1.addConstraint(Sketcher.Constraint("Horizontal", 28))
sketch1.addConstraint(Sketcher.Constraint("Horizontal", 32))
sketch1.addConstraint(Sketcher.Constraint("Horizontal", 34))
sketch1.addConstraint(Sketcher.Constraint("Horizontal", 36))
sketch1.addConstraint(Sketcher.Constraint("Vertical", 40))
sketch1.addConstraint(Sketcher.Constraint("Vertical", 42))
sketch1.addConstraint(Sketcher.Constraint("Vertical", 44))
sketch1.addConstraint(Sketcher.Constraint("Vertical", 48))
sketch1.addConstraint(Sketcher.Constraint("Vertical", 52))
sketch1.addConstraint(Sketcher.Constraint("Vertical", 54))
sketch1.addConstraint(Sketcher.Constraint("Vertical", 56))
sketch1.addConstraint(Sketcher.Constraint("Horizontal", 60))
sketch1.addConstraint(Sketcher.Constraint("Horizontal", 62))
sketch1.addConstraint(Sketcher.Constraint("Horizontal", 64))
sketch1.addConstraint(Sketcher.Constraint("Horizontal", 68))
sketch1.addConstraint(Sketcher.Constraint("Horizontal", 72))
sketch1.addConstraint(Sketcher.Constraint("Horizontal", 74))
sketch1.addConstraint(Sketcher.Constraint("Horizontal", 76))
sketch1.addConstraint(Sketcher.Constraint("Coincident", 80, 3, -1, 1))
sketch1.addConstraint(Sketcher.Constraint("Equal", 7, 9))
sketch1.addConstraint(Sketcher.Constraint("Equal", 5, 11))
sketch1.addConstraint(Sketcher.Constraint("Equal", 3, 13))
sketch1.addConstraint(Sketcher.Constraint("Equal", 1, 15))
sketch1.addConstraint(Sketcher.Constraint("Equal", 15, 17))
sketch1.addConstraint(Sketcher.Constraint("Equal", 17, 19))
sketch1.addConstraint(Sketcher.Constraint("Equal", 19, 21))
sketch1.addConstraint(Sketcher.Constraint("Equal", 13, 23))
sketch1.addConstraint(Sketcher.Constraint("Equal", 11, 25))
sketch1.addConstraint(Sketcher.Constraint("Equal", 9, 27))
sketch1.addConstraint(Sketcher.Constraint("Equal", 27, 29))
sketch1.addConstraint(Sketcher.Constraint("Equal", 25, 31))
sketch1.addConstraint(Sketcher.Constraint("Equal", 23, 33))
sketch1.addConstraint(Sketcher.Constraint("Equal", 21, 35))
sketch1.addConstraint(Sketcher.Constraint("Equal", 35, 37))
sketch1.addConstraint(Sketcher.Constraint("Equal", 18, 38))
sketch1.addConstraint(Sketcher.Constraint("Equal", 37, 39))
sketch1.addConstraint(Sketcher.Constraint("Equal", 39, 41))
sketch1.addConstraint(Sketcher.Constraint("Equal", 33, 43))
sketch1.addConstraint(Sketcher.Constraint("Equal", 31, 45))
sketch1.addConstraint(Sketcher.Constraint("Equal", 29, 47))
sketch1.addConstraint(Sketcher.Constraint("Equal", 47, 49))
sketch1.addConstraint(Sketcher.Constraint("Equal", 45, 51))
sketch1.addConstraint(Sketcher.Constraint("Equal", 43, 53))
sketch1.addConstraint(Sketcher.Constraint("Equal", 41, 55))
sketch1.addConstraint(Sketcher.Constraint("Equal", 55, 57))
sketch1.addConstraint(Sketcher.Constraint("Equal", 38, 58))
sketch1.addConstraint(Sketcher.Constraint("Equal", 57, 59))
sketch1.addConstraint(Sketcher.Constraint("Equal", 59, 61))
sketch1.addConstraint(Sketcher.Constraint("Equal", 53, 63))
sketch1.addConstraint(Sketcher.Constraint("Equal", 51, 65))
sketch1.addConstraint(Sketcher.Constraint("Equal", 49, 67))
sketch1.addConstraint(Sketcher.Constraint("Equal", 67, 69))
sketch1.addConstraint(Sketcher.Constraint("Equal", 65, 71))
sketch1.addConstraint(Sketcher.Constraint("Equal", 63, 73))
sketch1.addConstraint(Sketcher.Constraint("Equal", 61, 75))
sketch1.addConstraint(Sketcher.Constraint("Equal", 75, 77))
sketch1.addConstraint(Sketcher.Constraint("Equal", 58, 78))
sketch1.addConstraint(Sketcher.Constraint("Equal", 77, 79))
sketch1.addConstraint(Sketcher.Constraint("Symmetric", 1, 3, 41, 3, -1, 1))
sketch1.addConstraint(Sketcher.Constraint("Symmetric", 3, 3, 43, 3, -1, 1))
sketch1.addConstraint(Sketcher.Constraint("Symmetric", 7, 3, 47, 3, -1, 1))
sketch1.addConstraint(Sketcher.Constraint("Symmetric", 11, 3, 51, 3, -1, 1))
sketch1.addConstraint(Sketcher.Constraint("Symmetric", 15, 3, 55, 3, -1, 1))
sketch1.addConstraint(Sketcher.Constraint("Symmetric", 17, 3, 57, 3, -1, 1))
sketch1.addConstraint(Sketcher.Constraint("Symmetric", 18, 3, 58, 3, -1, 1))
sketch1.addConstraint(Sketcher.Constraint("Symmetric", 19, 3, 59, 3, -1, 1))
sketch1.addConstraint(Sketcher.Constraint("Symmetric", 21, 3, 61, 3, -1, 1))
sketch1.addConstraint(Sketcher.Constraint("Symmetric", 23, 3, 63, 3, -1, 1))
sketch1.addConstraint(Sketcher.Constraint("Symmetric", 27, 3, 67, 3, -1, 1))
sketch1.addConstraint(Sketcher.Constraint("Symmetric", 31, 3, 71, 3, -1, 1))
sketch1.addConstraint(Sketcher.Constraint("Symmetric", 35, 3, 75, 3, -1, 1))
sketch1.addConstraint(Sketcher.Constraint("Symmetric", 37, 3, 77, 3, -1, 1))
sketch1.addConstraint(Sketcher.Constraint("Symmetric", 38, 3, 78, 3, -1, 1))
sketch1.addConstraint(Sketcher.Constraint("Symmetric", 39, 3, 79, 3, -1, 1))
sketch1.addConstraint(Sketcher.Constraint("Symmetric", 25, 3, 31, 3, -2))
sketch1.addConstraint(Sketcher.Constraint("Symmetric", 21, 3, 35, 3, -2))
sketch1.addConstraint(Sketcher.Constraint("Symmetric", 19, 3, 37, 3, -2))
sketch1.addConstraint(Sketcher.Constraint("Symmetric", 18, 3, 38, 3, -2))
sketch1.addConstraint(Sketcher.Constraint("Symmetric", 17, 3, 39, 3, -2))
sketch1.addConstraint(Sketcher.Constraint("Symmetric", 15, 3, 41, 3, -2))
sketch1.addConstraint(Sketcher.Constraint("Symmetric", 13, 3, 43, 3, -2))
sketch1.addConstraint(Sketcher.Constraint("Symmetric", 10, 2, 45, 2, -2))
sketch1.addConstraint(Sketcher.Constraint("Symmetric", 6, 2, 49, 2, -2))
sketch1.addConstraint(Sketcher.Constraint("Symmetric", 66, 2, 69, 2, -2))
sketch1.addConstraint(Sketcher.Constraint("Perpendicular", 6, 10))
sketch1.addConstraint(Sketcher.Constraint("Parallel", 10, 26))
sketch1.addConstraint(Sketcher.Constraint("Perpendicular", 26, 30))
sketch1.addConstraint(Sketcher.Constraint("Horizontal", 19, 3, 21, 3))
sketch1.addConstraint(Sketcher.Constraint("Horizontal", 3, 3, 53, 3))
sketch1.addConstraint(Sketcher.Constraint("Horizontal", 37, 3, 19, 2))
sketch1.addConstraint(Sketcher.Constraint("Horizontal", 20, 2, 21, 2))
sketch1.addConstraint(Sketcher.Constraint("Horizontal", 34, 2, 35, 2))
sketch1.addConstraint(Sketcher.Constraint("Horizontal", 77, 3, 59, 2))
sketch1.addConstraint(Sketcher.Constraint("Horizontal", 74, 2, 75, 2))
sketch1.addConstraint(Sketcher.Constraint("Vertical", 15, 3, 17, 3))
sketch1.addConstraint(Sketcher.Constraint("Vertical", 33, 3, 63, 3))
sketch1.addConstraint(Sketcher.Constraint("Vertical", 23, 3, 73, 3))
sketch1.addConstraint(Sketcher.Constraint("Vertical", 79, 3, 0, 2))
sketch1.addConstraint(Sketcher.Constraint("Vertical", 0, 2, 1, 2))
sketch1.addConstraint(Sketcher.Constraint("Vertical", 14, 2, 15, 2))
sketch1.addConstraint(Sketcher.Constraint("Vertical", 57, 3, 39, 2))
sketch1.addConstraint(Sketcher.Constraint("Vertical", 54, 2, 55, 2))
sketch1.addConstraint(Sketcher.Constraint("Equal", 76, 0))
sketch1.addConstraint(Sketcher.Constraint("Equal", 74, 2))
sketch1.addConstraint(Sketcher.Constraint("Equal", 72, 4))
sketch1.addConstraint(Sketcher.Constraint("Equal", 68, 8))
sketch1.addConstraint(Sketcher.Constraint("Equal", 10, 26))
sketch1.addConstraint(Sketcher.Constraint("Radius", 1, Q("0.02 in")))
sketch1.addConstraint(Sketcher.Constraint("Radius", 5, Q("0.04 in")))
sketch1.addConstraint(Sketcher.Constraint("Diameter", 80, Q("0.205 in")))
sketch1.addConstraint(Sketcher.Constraint("Radius", 7, Q("0.125 in")))
sketch1.addConstraint(Sketcher.Constraint("Radius", 18, Q("0.083 in")))
sketch1.addConstraint(Sketcher.Constraint("DistanceX", 1, 3, -1, 1, Q("0.5 in")))
sketch1.addConstraint(Sketcher.Constraint("DistanceY", -1, 1, 19, 3, Q("0.5 in")))
sketch1.addConstraint(Sketcher.Constraint("Radius", 3, Q("0.0435 in")))
sketch1.addConstraint(Sketcher.Constraint("DistanceY", 3, 3, -1, 1, Q("0.171 in")))
sketch1.addConstraint(Sketcher.Constraint("DistanceX", 7, 3, -1, 1, Q("0.302 in")))
sketch1.addConstraint(Sketcher.Constraint("DistanceY", -1, 1, 17, 3, Q("0.396 in")))
sketch1.addConstraint(Sketcher.Constraint("DistanceX", 18, 3, -1, 1, Q("0.417 in")))
sketch1.addConstraint(Sketcher.Constraint("DistanceY", -1, 1, 18, 3, Q("0.417 in")))
sketch1.addConstraint(Sketcher.Constraint("DistanceX", 20, 1, 20, 2, 3.217316))
sketch1.addConstraint(Sketcher.Constraint("DistanceX", 24, 2, 24, 1, 2.131394))
pad1 = body.newObject("PartDesign::Pad", "Pad")
pad1.Profile = sketch1
pad1.Length = Q("11.75 in")

doc.recompute()
